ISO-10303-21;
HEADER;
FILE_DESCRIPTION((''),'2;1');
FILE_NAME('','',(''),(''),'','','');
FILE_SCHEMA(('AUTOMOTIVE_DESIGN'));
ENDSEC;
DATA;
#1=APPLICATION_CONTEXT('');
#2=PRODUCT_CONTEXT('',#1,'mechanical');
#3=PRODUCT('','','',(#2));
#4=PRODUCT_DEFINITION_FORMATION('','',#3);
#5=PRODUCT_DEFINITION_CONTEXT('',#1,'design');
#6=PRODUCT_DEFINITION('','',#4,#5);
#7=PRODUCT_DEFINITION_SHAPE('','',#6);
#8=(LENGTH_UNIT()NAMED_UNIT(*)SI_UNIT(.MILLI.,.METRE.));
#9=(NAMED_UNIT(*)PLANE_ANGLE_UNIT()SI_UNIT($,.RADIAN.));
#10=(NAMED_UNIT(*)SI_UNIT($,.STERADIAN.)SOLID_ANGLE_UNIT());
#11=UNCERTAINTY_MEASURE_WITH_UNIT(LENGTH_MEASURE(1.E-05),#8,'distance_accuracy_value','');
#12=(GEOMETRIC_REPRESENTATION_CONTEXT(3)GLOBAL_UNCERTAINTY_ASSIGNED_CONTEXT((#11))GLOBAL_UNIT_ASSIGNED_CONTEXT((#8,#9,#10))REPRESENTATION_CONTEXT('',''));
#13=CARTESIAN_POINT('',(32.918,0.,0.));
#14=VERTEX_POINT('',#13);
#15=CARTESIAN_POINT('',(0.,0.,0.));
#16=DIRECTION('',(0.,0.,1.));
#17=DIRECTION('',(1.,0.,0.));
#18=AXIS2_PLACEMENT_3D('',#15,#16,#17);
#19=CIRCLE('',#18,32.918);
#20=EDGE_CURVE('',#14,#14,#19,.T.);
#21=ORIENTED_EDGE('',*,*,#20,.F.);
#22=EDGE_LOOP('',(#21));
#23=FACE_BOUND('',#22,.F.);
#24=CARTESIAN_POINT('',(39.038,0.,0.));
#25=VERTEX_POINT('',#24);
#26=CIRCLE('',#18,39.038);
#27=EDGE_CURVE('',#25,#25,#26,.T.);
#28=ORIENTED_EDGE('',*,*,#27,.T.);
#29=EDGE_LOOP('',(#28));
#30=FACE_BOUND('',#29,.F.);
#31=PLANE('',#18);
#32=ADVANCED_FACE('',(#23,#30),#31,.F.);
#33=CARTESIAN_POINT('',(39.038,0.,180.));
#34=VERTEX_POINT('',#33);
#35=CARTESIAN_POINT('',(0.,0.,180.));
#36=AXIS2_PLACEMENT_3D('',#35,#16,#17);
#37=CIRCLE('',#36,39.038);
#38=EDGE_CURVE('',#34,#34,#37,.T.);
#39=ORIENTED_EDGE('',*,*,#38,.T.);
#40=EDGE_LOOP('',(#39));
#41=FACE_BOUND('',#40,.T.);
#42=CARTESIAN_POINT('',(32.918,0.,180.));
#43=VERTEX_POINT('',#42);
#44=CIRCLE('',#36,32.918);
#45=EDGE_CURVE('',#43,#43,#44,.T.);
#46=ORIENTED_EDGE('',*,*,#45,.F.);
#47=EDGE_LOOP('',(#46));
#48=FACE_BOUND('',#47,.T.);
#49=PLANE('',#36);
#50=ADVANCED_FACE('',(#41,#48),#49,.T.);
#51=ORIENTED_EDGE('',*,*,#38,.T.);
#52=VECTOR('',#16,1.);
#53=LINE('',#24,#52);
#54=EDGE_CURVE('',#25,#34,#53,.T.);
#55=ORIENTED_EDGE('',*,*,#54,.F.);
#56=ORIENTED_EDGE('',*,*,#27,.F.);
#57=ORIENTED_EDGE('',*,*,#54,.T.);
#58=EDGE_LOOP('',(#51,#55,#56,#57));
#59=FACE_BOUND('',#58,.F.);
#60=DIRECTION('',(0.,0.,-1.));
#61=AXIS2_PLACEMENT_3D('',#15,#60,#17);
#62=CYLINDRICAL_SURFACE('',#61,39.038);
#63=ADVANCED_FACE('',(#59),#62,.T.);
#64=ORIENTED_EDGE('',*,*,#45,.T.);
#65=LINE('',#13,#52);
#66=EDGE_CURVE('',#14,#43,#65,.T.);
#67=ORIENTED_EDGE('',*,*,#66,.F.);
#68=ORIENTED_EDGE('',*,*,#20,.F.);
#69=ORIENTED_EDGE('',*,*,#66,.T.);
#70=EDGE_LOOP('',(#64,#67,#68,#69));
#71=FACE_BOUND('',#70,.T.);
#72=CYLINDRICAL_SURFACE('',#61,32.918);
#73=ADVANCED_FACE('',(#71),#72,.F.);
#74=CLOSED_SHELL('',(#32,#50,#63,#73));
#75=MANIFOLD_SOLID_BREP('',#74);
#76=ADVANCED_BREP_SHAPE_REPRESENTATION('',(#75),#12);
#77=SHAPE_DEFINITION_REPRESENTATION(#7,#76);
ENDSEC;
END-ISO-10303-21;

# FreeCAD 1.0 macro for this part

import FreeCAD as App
import Part
import Sketcher

doc = App.newDocument("Part")
body = doc.addObject("PartDesign::Body", "Body")

# Sketch on XY plane
sketch1 = body.newObject("Sketcher::SketchObject", "Sketch")
sketch1.AttachmentSupport = (doc.getObject("XY_Plane"), [""])
sketch1.MapMode = "FlatFace"
sketch1.addGeometry([
    Part.Circle(App.Vector(0, 0, 0), App.Vector(0, 0, 1), 39),
    Part.Circle(App.Vector(0, 0, 0), App.Vector(0, 0, 1), 33),
], False)
sketch1.addConstraint([
    Sketcher.Constraint("Coincident", 0, 3, -1, 1),
    Sketcher.Constraint("Coincident", 1, 3, -1, 1),
    Sketcher.Constraint("Diameter", 0, 78.076),
    Sketcher.Constraint("Diameter", 1, 65.836),
])
pad1 = body.newObject("PartDesign::Pad", "Pad")
pad1.Profile = sketch1
pad1.Length = 180

doc.recompute()
